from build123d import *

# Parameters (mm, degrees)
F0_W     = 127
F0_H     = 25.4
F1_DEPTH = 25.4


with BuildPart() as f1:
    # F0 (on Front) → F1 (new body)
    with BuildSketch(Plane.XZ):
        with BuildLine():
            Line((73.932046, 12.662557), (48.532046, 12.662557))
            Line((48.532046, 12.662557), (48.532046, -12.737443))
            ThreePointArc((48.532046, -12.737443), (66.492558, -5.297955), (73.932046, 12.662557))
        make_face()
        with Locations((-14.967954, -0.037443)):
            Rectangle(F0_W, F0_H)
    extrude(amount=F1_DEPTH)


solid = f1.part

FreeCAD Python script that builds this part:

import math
import FreeCAD as App
import Part
import Sketcher

V = App.Vector
Q = App.Units.Quantity

doc = App.newDocument("Part")
params = doc.addObject("Spreadsheet::Sheet", "Params")
for row, (alias, value) in enumerate([
    ("sketch1_radius", "1 in"),
    ("sketch1_width", "6 in"),
    ("pad1_length", "1 in"),
], start=1):
    params.set(f"A{row}", alias)
    params.set(f"B{row}", "=" + value)
    params.setAlias(f"B{row}", alias)

body = doc.addObject("PartDesign::Body", "Body")

sketch1 = doc.addObject("Sketcher::SketchObject", "Sketch")
body.addObject(sketch1)
sketch1.AttachmentSupport = (doc.XZ_Plane, [""])
sketch1.MapMode = "FlatFace"
sketch1.addGeometry([
    Part.LineSegment(V(74, 13, 0), V(-78, 13, 0)),
    Part.LineSegment(V(-78, 13, 0), V(-78, -13, 0)),
    Part.LineSegment(V(-78, -13, 0), V(49, -13, 0)),
    Part.ArcOfCircle(Part.Circle(V(49, 13, 0), V(0, 0, 1), 25), math.radians(-90), math.radians(0)),
], False)
sketch1.addConstraint([
    Sketcher.Constraint("Coincident", 0, 2, 1, 1),
    Sketcher.Constraint("Coincident", 1, 2, 2, 1),
    Sketcher.Constraint("Tangent", 2, 2, 3, 1),
    Sketcher.Constraint("Coincident", 3, 2, 0, 1),
    Sketcher.Constraint("Horizontal", 0),
    Sketcher.Constraint("Vertical", 1),
    Sketcher.Constraint("Horizontal", 2),
    Sketcher.Constraint("Horizontal", 3, 3, 0, 2),
    Sketcher.Constraint("Radius", 3, Q("1 in")),
    Sketcher.Constraint("DistanceX", 0, 2, 0, 1, Q("6 in")),
    Sketcher.Constraint("DistanceX", -1, 1, 3, 3, Q("48.532045 mm")),
    Sketcher.Constraint("DistanceY", -1, 1, 3, 3, Q("12.662558 mm")),
])
sketch1.setExpression("Constraints[8]", "Params.sketch1_radius")
sketch1.setExpression("Constraints[9]", "Params.sketch1_width")
pad1 = doc.addObject("PartDesign::Pad", "Pad")
body.addObject(pad1)
pad1.Profile = sketch1
pad1.setExpression("Length", "Params.pad1_length")

doc.recompute()
